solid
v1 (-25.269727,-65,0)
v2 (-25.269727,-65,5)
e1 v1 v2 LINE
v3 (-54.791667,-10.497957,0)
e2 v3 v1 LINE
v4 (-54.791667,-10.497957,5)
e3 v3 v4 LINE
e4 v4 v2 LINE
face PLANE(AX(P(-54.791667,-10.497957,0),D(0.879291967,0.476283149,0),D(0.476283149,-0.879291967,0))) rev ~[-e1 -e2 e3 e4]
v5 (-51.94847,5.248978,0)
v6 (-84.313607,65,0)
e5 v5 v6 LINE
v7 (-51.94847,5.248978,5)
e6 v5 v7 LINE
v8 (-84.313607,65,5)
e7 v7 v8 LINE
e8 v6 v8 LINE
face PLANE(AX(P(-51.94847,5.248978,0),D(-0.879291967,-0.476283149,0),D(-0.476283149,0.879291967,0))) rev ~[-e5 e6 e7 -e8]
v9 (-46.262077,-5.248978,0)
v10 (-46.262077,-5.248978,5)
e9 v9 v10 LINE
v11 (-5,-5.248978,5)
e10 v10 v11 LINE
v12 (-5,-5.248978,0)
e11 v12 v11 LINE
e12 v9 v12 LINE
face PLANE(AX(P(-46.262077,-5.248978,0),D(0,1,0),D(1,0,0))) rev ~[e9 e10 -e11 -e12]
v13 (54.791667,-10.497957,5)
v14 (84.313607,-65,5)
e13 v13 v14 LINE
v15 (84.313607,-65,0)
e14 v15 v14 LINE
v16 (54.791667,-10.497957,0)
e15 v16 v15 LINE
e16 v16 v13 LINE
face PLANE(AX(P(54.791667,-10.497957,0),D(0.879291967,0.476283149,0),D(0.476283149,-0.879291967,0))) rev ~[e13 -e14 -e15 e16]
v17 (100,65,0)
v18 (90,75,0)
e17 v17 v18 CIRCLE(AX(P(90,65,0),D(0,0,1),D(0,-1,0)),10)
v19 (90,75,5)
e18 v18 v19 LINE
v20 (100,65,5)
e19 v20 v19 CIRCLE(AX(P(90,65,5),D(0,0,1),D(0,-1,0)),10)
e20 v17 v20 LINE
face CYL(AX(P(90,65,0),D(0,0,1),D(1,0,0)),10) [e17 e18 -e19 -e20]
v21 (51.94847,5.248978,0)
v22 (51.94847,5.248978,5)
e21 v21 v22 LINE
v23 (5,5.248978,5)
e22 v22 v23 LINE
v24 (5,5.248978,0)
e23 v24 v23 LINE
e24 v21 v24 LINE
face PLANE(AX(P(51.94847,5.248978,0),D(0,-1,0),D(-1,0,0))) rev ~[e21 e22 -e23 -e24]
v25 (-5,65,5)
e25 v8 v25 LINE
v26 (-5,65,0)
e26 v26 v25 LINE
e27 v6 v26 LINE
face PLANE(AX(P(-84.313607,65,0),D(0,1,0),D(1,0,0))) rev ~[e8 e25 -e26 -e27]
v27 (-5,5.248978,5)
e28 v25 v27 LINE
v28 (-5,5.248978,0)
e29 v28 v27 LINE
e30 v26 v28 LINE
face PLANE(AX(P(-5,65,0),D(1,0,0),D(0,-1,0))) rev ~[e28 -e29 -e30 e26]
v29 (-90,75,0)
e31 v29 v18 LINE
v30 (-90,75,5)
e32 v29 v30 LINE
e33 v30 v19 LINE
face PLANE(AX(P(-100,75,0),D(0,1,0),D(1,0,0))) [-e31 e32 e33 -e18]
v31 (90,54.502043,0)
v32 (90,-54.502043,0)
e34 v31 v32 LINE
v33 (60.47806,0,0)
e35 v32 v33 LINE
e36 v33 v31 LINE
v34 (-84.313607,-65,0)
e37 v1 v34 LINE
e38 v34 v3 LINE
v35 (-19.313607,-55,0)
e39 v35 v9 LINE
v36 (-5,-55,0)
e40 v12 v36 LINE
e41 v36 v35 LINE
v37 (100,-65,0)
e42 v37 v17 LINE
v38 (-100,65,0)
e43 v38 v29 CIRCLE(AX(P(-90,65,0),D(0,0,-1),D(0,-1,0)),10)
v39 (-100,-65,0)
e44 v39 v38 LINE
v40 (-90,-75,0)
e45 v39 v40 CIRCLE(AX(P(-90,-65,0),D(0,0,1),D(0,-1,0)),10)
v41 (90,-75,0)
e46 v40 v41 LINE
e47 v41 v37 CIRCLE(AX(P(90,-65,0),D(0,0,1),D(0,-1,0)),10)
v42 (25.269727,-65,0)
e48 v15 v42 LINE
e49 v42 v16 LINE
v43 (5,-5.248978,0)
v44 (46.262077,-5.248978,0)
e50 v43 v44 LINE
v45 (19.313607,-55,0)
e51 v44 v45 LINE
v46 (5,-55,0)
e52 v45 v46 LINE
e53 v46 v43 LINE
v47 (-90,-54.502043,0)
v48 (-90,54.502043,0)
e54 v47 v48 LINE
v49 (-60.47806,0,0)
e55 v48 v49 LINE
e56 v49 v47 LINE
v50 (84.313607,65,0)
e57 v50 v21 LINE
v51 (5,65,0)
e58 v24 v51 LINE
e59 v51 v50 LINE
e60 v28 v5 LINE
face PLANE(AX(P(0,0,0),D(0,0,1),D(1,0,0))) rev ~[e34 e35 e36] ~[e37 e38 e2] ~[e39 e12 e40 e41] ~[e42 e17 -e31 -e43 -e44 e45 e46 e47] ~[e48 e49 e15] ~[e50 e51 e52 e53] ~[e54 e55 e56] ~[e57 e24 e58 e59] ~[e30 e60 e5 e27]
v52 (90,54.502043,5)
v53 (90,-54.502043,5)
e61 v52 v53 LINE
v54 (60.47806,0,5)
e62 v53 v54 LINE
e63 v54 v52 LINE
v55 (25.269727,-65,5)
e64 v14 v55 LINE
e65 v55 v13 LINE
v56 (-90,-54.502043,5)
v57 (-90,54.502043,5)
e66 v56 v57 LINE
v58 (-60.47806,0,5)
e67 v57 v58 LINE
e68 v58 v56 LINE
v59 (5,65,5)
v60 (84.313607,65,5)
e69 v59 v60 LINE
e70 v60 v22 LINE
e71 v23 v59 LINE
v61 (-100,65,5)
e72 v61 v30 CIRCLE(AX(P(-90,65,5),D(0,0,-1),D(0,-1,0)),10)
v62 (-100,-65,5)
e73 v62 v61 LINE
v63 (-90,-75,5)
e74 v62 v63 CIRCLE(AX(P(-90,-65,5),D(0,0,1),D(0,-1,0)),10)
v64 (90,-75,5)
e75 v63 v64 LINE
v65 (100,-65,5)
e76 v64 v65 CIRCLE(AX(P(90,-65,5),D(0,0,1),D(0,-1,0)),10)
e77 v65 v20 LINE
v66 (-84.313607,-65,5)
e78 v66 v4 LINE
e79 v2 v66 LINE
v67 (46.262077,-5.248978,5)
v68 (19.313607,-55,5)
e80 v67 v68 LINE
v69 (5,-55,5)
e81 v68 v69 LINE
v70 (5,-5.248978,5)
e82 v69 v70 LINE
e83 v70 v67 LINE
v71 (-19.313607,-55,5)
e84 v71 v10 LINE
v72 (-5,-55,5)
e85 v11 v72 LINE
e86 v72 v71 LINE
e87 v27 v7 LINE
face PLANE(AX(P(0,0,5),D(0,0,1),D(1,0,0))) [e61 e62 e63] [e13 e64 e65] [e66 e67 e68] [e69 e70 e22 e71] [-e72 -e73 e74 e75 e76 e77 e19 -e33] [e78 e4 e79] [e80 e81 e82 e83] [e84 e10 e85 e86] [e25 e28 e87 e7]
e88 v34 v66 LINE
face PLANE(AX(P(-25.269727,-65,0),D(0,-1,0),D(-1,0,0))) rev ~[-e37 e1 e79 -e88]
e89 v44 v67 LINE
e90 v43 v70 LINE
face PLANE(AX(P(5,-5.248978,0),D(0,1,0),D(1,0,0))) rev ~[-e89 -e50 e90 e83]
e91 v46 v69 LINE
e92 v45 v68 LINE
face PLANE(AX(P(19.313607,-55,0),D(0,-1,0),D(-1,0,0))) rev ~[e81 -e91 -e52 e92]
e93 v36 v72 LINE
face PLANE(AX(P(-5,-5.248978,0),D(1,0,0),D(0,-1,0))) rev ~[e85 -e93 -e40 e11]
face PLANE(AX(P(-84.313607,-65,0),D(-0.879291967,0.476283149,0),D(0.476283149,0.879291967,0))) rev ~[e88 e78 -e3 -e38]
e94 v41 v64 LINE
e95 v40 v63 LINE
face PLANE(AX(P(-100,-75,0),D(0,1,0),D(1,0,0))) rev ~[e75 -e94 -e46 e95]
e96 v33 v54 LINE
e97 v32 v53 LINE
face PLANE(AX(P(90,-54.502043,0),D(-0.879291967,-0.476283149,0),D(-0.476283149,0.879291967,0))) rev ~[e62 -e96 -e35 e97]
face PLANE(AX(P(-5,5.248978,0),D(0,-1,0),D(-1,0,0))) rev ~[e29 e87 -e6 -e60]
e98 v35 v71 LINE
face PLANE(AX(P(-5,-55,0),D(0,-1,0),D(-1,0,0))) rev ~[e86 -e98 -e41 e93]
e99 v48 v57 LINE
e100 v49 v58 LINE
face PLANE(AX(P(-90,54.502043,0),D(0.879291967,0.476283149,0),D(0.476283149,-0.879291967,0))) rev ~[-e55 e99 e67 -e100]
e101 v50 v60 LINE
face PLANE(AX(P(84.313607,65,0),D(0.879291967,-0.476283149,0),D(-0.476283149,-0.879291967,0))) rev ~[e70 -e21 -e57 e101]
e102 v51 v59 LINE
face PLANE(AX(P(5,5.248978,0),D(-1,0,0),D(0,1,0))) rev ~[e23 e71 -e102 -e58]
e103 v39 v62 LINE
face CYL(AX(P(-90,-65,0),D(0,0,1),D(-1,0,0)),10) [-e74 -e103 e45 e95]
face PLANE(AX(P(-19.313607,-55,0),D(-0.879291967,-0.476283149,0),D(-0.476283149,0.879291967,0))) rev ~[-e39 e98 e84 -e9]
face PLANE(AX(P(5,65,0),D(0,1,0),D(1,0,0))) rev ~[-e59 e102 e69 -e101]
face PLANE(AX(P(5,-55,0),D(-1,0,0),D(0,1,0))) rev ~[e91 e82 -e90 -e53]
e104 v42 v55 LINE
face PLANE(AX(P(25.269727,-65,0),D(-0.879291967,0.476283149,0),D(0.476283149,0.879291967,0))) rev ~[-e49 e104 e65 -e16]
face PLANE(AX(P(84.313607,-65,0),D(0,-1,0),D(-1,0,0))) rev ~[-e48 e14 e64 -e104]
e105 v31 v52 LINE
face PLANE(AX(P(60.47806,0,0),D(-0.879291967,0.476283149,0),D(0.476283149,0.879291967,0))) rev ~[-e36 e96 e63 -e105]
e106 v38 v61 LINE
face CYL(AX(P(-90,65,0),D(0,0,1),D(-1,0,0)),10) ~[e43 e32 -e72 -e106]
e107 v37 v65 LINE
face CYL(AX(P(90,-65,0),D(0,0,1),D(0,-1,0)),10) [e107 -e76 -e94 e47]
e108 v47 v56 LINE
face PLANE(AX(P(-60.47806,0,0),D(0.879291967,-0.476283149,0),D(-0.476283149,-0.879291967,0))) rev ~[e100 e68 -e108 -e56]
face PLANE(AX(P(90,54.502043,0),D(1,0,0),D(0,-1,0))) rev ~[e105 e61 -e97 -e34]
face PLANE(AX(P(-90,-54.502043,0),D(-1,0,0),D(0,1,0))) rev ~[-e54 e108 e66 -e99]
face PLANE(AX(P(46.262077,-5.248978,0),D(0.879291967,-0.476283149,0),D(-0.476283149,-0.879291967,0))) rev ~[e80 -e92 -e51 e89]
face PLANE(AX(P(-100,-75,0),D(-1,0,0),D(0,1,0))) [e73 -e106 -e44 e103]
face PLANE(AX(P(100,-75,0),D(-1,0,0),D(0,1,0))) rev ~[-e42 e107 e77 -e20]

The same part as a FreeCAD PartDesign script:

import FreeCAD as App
import Part
import Sketcher

V = App.Vector


def edges_at(feature, points):
    """Names of the edges that pass closest to the given points."""
    edges = feature.Shape.Edges
    near = lambda p: min(range(len(edges)), key=lambda i: edges[i].distToShape(Part.Vertex(*p))[0])
    return sorted({f"Edge{near(p) + 1}" for p in points})


def add_polygon(sketch, points):
    """Adds a closed chain of lines whose ends are joined by coincident constraints."""
    first, n = sketch.GeometryCount, len(points)
    for a, b in zip(points, points[1:] + points[:1]):
        sketch.addGeometry(Part.LineSegment(App.Vector(*a, 0), App.Vector(*b, 0)), False)
    for i in range(n):
        sketch.addConstraint(Sketcher.Constraint("Coincident", first + i, 2, first + (i + 1) % n, 1))

doc = App.newDocument("Part")
body = doc.addObject("PartDesign::Body", "Body")

# Sketch on XY plane
sketch1 = doc.addObject("Sketcher::SketchObject", "Sketch")
body.addObject(sketch1)
sketch1.AttachmentSupport = (doc.XY_Plane, [""])
sketch1.MapMode = "FlatFace"
add_polygon(sketch1, [(-100, 75), (-100, -75), (100, -75), (100, 75)])  # lines 0-3
add_polygon(sketch1, [(-84.313607, -65), (-54.791667, -10.497957), (-25.269727, -65)])  # lines 4-6
add_polygon(sketch1, [(-5, -55), (-19.313607, -55), (-46.262077, -5.248978), (-5, -5.248978)])  # lines 7-10
add_polygon(sketch1, [(5, -5.248978), (46.262077, -5.248978), (19.313607, -55), (5, -55)])  # lines 11-14
add_polygon(sketch1, [(-90, 54.502043), (-60.47806, 0), (-90, -54.502043)])  # lines 15-17
add_polygon(sketch1, [(-51.94847, 5.248978), (-84.313607, 65), (-5, 65), (-5, 5.248978)])  # lines 18-21
add_polygon(sketch1, [(25.269727, -65), (54.791667, -10.497957), (84.313607, -65)])  # lines 22-24
add_polygon(sketch1, [(51.94847, 5.248978), (5, 5.248978), (5, 65), (84.313607, 65)])  # lines 25-28
add_polygon(sketch1, [(90, 54.502043), (90, -54.502043), (60.47806, 0)])  # lines 29-31
sketch1.addConstraint(Sketcher.Constraint("Vertical", 0))
sketch1.addConstraint(Sketcher.Constraint("Horizontal", 1))
sketch1.addConstraint(Sketcher.Constraint("Vertical", 2))
sketch1.addConstraint(Sketcher.Constraint("Horizontal", 3))
sketch1.addConstraint(Sketcher.Constraint("Horizontal", 6))
sketch1.addConstraint(Sketcher.Constraint("Horizontal", 7))
sketch1.addConstraint(Sketcher.Constraint("Horizontal", 9))
sketch1.addConstraint(Sketcher.Constraint("Vertical", 10))
sketch1.addConstraint(Sketcher.Constraint("Horizontal", 11))
sketch1.addConstraint(Sketcher.Constraint("Horizontal", 13))
sketch1.addConstraint(Sketcher.Constraint("Vertical", 14))
sketch1.addConstraint(Sketcher.Constraint("Vertical", 17))
sketch1.addConstraint(Sketcher.Constraint("Horizontal", 19))
sketch1.addConstraint(Sketcher.Constraint("Vertical", 20))
sketch1.addConstraint(Sketcher.Constraint("Horizontal", 21))
sketch1.addConstraint(Sketcher.Constraint("Horizontal", 24))
sketch1.addConstraint(Sketcher.Constraint("Horizontal", 25))
sketch1.addConstraint(Sketcher.Constraint("Vertical", 26))
sketch1.addConstraint(Sketcher.Constraint("Horizontal", 27))
sketch1.addConstraint(Sketcher.Constraint("Vertical", 29))
sketch1.addConstraint(Sketcher.Constraint("Symmetric", 0, 2, 2, 2, -1, 1))
sketch1.addConstraint(Sketcher.Constraint("Symmetric", 14, 2, 20, 2, -1, 1))
sketch1.addConstraint(Sketcher.Constraint("Symmetric", 18, 2, 23, 2, -1, 1))
sketch1.addConstraint(Sketcher.Constraint("Symmetric", 9, 2, 25, 2, -1, 1))
sketch1.addConstraint(Sketcher.Constraint("Symmetric", 6, 2, 27, 2, -1, 1))
sketch1.addConstraint(Sketcher.Constraint("Symmetric", 17, 2, 29, 2, -1, 1))
sketch1.addConstraint(Sketcher.Constraint("Symmetric", 15, 2, 30, 2, -1, 1))
sketch1.addConstraint(Sketcher.Constraint("Symmetric", 8, 2, 11, 2, -2))
sketch1.addConstraint(Sketcher.Constraint("Symmetric", 7, 2, 12, 2, -2))
sketch1.addConstraint(Sketcher.Constraint("Symmetric", 4, 2, 22, 2, -2))
sketch1.addConstraint(Sketcher.Constraint("Symmetric", 6, 2, 23, 2, -2))
sketch1.addConstraint(Sketcher.Constraint("PointOnObject", 15, 2, -1))
sketch1.addConstraint(Sketcher.Constraint("Parallel", 5, 8))
sketch1.addConstraint(Sketcher.Constraint("Parallel", 4, 12))
sketch1.addConstraint(Sketcher.Constraint("Parallel", 8, 15))
sketch1.addConstraint(Sketcher.Constraint("Parallel", 12, 16))
sketch1.addConstraint(Sketcher.Constraint("Parallel", 15, 18))
sketch1.addConstraint(Sketcher.Constraint("Parallel", 16, 22))
sketch1.addConstraint(Sketcher.Constraint("Parallel", 22, 28))
sketch1.addConstraint(Sketcher.Constraint("Parallel", 28, 31))
sketch1.addConstraint(Sketcher.Constraint("Vertical", 10, 2, 19, 2))
sketch1.addConstraint(Sketcher.Constraint("Equal", 5, 15))
sketch1.addConstraint(Sketcher.Constraint("DistanceX", 1, 1, 1, 2, 200.0))
sketch1.addConstraint(Sketcher.Constraint("DistanceY", 0, 2, 0, 1, 150.0))
sketch1.addConstraint(Sketcher.Constraint("DistanceY", 5, 2, -1, 1, 65.0))
sketch1.addConstraint(Sketcher.Constraint("DistanceY", 7, 2, -1, 1, 55.0))
sketch1.addConstraint(Sketcher.Constraint("DistanceX", 9, 2, -1, 1, 5.0))
sketch1.addConstraint(Sketcher.Constraint("DistanceX", 16, 2, -1, 1, 90.0))
sketch1.addConstraint(Sketcher.Constraint("DistanceX", 6, 2, 7, 2, 65.0))
sketch1.addConstraint(Sketcher.Constraint("DistanceX", 6, 2, 6, 1, 59.04388))
sketch1.addConstraint(Sketcher.Constraint("DistanceX", 21, 2, 21, 1, 46.94847))
sketch1.addConstraint(Sketcher.Constraint("DistanceY", 10, 2, 10, 1, 49.751022))
sketch1.addConstraint(Sketcher.Constraint("Distance", 4, 61.984011))
pad1 = doc.addObject("PartDesign::Pad", "Pad")
body.addObject(pad1)
pad1.Profile = sketch1
pad1.Length = 5
doc.recompute()

fillet = doc.addObject("PartDesign::Fillet", "Fillet")
body.addObject(fillet)
fillet.Base = (pad1, edges_at(pad1, [
    (-100, -75, 2.5),
    (100, -75, 2.5),
    (100, 75, 2.5),
    (-100, 75, 2.5),
]))
fillet.Radius = 10

doc.recompute()
